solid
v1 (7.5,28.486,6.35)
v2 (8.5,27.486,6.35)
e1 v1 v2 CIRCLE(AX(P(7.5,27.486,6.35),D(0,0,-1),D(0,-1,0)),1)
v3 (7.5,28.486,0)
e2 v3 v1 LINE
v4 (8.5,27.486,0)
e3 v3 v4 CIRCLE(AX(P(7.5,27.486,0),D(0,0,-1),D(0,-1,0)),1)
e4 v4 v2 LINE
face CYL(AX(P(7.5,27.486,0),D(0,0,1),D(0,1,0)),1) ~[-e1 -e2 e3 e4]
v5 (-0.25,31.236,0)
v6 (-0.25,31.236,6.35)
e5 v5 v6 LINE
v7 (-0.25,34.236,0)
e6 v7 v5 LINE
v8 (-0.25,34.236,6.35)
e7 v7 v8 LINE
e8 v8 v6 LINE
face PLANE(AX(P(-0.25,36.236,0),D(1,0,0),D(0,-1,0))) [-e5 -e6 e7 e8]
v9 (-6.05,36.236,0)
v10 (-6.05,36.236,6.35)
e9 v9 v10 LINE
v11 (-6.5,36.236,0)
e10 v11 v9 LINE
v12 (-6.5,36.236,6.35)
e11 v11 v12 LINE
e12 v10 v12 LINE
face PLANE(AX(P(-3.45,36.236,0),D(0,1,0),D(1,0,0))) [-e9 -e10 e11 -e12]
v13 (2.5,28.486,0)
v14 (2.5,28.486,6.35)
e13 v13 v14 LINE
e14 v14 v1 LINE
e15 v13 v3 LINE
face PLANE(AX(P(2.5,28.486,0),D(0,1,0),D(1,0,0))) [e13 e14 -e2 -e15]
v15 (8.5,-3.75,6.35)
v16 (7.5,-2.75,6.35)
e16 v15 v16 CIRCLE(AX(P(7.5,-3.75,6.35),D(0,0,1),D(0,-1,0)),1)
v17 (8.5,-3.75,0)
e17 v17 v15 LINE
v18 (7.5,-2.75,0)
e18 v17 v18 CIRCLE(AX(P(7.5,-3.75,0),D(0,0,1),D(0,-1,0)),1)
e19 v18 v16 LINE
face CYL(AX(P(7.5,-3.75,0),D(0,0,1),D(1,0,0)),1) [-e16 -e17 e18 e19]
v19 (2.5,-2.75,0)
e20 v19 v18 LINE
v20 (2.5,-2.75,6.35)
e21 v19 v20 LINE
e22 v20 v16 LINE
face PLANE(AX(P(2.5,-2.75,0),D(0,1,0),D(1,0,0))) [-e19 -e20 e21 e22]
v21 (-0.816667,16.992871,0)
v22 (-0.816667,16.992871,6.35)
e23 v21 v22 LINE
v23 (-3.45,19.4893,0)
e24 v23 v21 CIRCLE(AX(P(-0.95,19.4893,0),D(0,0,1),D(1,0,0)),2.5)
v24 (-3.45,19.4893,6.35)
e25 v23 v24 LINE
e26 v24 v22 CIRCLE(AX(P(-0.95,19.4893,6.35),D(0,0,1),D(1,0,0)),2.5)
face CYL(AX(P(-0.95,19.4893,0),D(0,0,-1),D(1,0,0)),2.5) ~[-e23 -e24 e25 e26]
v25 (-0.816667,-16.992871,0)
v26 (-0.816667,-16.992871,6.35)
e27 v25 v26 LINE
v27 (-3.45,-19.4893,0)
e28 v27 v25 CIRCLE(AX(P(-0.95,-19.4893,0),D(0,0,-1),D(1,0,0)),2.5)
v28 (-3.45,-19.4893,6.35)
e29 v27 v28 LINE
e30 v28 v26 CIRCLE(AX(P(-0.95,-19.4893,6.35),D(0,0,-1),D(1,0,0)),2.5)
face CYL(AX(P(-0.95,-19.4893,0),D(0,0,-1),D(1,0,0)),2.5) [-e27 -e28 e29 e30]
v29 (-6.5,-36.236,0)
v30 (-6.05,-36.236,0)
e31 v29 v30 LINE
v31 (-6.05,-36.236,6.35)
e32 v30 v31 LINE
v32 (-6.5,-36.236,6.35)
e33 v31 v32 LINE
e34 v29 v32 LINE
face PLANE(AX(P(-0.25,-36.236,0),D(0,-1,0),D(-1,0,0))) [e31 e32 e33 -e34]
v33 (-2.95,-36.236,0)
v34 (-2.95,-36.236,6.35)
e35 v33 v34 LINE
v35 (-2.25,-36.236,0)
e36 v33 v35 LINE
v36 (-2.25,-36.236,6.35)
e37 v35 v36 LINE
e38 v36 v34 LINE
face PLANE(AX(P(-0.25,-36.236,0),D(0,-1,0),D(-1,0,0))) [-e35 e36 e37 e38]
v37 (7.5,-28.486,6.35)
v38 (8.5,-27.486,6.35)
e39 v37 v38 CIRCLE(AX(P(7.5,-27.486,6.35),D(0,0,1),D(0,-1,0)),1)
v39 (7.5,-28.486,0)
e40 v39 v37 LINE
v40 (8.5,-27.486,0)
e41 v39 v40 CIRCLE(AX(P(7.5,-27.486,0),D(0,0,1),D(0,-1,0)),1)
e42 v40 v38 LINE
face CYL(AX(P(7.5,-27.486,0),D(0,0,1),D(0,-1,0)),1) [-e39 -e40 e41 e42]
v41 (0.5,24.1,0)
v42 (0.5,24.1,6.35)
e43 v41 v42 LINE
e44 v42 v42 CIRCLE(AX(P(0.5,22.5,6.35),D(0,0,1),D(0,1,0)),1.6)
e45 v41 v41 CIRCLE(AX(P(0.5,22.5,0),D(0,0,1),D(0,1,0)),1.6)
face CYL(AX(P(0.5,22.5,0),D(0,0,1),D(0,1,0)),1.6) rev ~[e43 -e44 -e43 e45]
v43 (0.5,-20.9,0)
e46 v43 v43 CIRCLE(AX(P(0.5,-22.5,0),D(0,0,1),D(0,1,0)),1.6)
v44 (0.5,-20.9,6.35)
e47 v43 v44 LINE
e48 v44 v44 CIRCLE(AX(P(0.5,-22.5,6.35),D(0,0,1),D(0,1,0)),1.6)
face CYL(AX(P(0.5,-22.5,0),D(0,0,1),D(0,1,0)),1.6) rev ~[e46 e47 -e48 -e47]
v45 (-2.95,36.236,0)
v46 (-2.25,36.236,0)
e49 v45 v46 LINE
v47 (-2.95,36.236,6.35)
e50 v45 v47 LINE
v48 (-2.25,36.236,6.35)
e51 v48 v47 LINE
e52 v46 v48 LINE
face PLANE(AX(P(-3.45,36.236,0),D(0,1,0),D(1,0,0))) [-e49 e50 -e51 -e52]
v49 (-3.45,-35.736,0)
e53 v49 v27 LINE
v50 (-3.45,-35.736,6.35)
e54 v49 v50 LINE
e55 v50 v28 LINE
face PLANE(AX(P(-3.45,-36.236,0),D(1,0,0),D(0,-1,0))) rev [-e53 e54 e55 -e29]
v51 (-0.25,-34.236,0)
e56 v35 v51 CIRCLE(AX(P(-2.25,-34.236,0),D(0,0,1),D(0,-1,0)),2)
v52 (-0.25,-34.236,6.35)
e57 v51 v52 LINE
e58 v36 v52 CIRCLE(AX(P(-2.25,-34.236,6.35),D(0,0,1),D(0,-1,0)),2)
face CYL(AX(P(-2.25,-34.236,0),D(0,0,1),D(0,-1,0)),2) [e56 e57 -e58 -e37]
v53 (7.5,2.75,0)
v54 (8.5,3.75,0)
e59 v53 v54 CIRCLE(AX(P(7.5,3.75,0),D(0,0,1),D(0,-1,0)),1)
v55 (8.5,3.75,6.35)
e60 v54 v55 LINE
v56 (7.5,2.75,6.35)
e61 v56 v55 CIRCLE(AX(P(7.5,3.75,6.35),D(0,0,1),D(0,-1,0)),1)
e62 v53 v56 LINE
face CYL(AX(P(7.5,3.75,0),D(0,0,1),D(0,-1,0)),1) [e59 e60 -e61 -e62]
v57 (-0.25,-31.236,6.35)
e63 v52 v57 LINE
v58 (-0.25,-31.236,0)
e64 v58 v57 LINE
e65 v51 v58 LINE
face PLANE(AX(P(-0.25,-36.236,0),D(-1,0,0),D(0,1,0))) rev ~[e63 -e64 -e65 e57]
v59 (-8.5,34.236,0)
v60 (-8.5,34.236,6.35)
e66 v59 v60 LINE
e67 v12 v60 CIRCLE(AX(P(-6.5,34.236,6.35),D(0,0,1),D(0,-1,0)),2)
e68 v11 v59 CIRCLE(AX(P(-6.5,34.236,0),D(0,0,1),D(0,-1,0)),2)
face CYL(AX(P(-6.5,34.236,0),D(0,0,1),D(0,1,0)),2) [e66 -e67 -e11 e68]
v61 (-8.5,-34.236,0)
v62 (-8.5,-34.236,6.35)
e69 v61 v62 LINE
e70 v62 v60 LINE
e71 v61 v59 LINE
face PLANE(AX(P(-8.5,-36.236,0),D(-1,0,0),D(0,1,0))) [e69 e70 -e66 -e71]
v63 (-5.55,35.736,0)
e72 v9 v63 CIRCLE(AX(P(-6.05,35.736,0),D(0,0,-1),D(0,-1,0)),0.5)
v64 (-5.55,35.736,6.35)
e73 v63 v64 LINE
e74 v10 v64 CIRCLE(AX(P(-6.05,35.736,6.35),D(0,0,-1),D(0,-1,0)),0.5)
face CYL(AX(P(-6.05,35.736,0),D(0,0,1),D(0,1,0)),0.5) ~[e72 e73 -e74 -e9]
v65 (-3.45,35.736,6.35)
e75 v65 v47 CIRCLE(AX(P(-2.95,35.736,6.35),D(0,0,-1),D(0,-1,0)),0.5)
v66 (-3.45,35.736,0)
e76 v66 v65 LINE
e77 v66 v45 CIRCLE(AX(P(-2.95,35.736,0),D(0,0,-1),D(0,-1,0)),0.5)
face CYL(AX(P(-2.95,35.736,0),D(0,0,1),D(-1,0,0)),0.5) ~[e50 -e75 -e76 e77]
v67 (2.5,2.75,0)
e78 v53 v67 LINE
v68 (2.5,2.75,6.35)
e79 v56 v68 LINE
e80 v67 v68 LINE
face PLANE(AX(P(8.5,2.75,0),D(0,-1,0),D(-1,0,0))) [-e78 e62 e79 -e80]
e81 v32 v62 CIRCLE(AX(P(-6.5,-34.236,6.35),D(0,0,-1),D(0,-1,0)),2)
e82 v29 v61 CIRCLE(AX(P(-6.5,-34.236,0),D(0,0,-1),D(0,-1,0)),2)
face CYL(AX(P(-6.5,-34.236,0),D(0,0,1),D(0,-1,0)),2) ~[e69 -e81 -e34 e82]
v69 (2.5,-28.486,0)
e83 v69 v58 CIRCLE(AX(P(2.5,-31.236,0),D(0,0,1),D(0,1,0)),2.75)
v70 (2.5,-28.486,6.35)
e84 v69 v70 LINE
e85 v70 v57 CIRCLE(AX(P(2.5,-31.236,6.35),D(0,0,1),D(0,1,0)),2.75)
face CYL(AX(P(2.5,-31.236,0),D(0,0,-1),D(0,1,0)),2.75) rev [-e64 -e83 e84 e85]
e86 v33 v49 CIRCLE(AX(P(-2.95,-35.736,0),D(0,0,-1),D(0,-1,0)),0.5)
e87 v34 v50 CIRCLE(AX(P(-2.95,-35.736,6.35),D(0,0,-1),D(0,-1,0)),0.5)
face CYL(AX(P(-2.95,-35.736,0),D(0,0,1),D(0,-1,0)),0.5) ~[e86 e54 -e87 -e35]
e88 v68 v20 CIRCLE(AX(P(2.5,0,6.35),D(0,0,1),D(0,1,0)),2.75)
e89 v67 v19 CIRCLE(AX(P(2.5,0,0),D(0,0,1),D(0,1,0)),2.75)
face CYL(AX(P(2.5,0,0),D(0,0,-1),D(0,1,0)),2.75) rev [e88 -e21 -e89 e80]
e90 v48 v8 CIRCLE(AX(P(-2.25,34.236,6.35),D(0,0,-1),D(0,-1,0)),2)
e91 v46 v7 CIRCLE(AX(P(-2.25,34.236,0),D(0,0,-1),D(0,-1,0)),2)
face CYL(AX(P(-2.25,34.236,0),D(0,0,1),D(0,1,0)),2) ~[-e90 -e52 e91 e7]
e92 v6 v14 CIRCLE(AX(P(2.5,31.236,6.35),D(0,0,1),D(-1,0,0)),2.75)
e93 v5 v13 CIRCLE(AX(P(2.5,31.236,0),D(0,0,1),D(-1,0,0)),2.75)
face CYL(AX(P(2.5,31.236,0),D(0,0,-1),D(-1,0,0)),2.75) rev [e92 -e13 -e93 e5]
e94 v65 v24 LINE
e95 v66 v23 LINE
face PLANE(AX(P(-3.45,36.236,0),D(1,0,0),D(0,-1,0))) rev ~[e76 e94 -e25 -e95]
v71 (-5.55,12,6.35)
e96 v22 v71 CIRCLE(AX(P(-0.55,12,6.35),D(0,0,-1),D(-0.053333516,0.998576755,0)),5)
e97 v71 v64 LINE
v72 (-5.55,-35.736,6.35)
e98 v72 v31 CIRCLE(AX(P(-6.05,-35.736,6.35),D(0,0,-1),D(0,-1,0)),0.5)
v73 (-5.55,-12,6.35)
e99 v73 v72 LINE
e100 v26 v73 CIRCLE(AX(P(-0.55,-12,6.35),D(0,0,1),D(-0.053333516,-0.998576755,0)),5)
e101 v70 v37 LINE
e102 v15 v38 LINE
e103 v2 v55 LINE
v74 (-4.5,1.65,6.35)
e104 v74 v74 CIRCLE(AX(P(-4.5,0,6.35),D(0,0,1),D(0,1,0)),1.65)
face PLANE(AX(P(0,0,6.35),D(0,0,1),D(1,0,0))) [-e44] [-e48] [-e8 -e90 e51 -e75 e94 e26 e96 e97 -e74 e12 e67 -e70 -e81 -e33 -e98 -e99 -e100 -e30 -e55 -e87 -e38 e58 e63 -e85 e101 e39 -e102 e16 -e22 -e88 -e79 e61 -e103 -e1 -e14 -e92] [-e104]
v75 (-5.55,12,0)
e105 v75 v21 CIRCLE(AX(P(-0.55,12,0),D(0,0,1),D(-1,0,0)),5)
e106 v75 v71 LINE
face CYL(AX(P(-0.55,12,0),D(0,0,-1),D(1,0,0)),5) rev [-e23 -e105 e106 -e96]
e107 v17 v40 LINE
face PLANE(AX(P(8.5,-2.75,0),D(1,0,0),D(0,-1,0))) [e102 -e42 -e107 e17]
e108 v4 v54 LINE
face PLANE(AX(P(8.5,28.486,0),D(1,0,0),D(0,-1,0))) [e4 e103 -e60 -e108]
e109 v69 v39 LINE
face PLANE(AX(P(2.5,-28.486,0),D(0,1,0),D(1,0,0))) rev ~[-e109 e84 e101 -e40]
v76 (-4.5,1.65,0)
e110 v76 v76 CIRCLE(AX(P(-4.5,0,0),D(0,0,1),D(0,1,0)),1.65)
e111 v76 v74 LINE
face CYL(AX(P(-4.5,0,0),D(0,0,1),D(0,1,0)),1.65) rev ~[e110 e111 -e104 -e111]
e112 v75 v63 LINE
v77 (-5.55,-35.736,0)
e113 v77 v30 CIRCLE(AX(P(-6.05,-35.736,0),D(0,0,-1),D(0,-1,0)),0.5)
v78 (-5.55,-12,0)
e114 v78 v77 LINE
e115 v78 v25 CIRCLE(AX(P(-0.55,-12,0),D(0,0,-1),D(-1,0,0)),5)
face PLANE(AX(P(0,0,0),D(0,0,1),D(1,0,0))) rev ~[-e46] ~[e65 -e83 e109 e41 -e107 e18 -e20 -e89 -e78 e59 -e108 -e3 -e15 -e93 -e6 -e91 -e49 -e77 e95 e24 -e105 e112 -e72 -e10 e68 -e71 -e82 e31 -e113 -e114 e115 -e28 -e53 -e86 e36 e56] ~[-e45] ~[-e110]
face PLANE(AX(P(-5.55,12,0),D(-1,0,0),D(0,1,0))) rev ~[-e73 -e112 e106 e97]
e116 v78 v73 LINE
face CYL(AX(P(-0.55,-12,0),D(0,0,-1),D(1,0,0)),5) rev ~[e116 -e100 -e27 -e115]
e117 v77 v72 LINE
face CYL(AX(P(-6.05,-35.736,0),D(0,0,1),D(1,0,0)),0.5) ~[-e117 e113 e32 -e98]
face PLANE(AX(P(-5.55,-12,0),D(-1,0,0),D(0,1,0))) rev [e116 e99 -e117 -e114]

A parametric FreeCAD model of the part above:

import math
import FreeCAD as App
import Part
import Sketcher


def edges_at(feature, points):
    """Names of the edges that pass closest to the given points."""
    edges = feature.Shape.Edges
    near = lambda p: min(range(len(edges)), key=lambda i: edges[i].distToShape(Part.Vertex(*p))[0])
    return sorted({f"Edge{near(p) + 1}" for p in points})

doc = App.newDocument("Part")
params = doc.addObject("Spreadsheet::Sheet", "Params")
for row, (alias, value) in enumerate([
    ("sketch1_height", "5 mm"),
    ("sketch1_radius", "2.75 mm"),
    ("pad1_length", "6.35 mm"),
    ("fillet_radius", "2 mm"),
    ("fillet2_radius", "2 mm"),
    ("fillet3_radius", "1 mm"),
    ("sketch2_diameter", "3.2 mm"),
    ("hole_diameter", "3.2 mm"),
    ("sketch3_diameter", "3.3 mm"),
    ("hole2_diameter", "3.3 mm"),
    ("sketch4_radius", "5 mm"),
    ("sketch4_radius2", "2.5 mm"),
    ("sketch4_width", "2.1 mm"),
    ("pocket1_length", "6.35 mm"),
    ("fillet4_radius", "0.5 mm"),
], start=1):
    params.set(f"A{row}", alias)
    params.set(f"B{row}", "=" + value)
    params.setAlias(f"B{row}", alias)

body = doc.addObject("PartDesign::Body", "Body")

# Sketch on XY plane
sketch1 = doc.addObject("Sketcher::SketchObject", "Sketch")
body.addObject(sketch1)
sketch1.AttachmentSupport = (doc.XY_Plane, [""])
sketch1.MapMode = "FlatFace"
sketch1.addGeometry([
    Part.LineSegment(App.Vector(-0.2, -36.2, 0), App.Vector(-0.2, -31.2, 0)),  # 0
    Part.ArcOfCircle(Part.Circle(App.Vector(2.5, -31.2, 0), App.Vector(0, 0, 1), 2.8), math.radians(90), math.radians(180)),  # 1
    Part.LineSegment(App.Vector(2.5, -28.5, 0), App.Vector(8.5, -28.5, 0)),  # 2
    Part.LineSegment(App.Vector(8.5, -28.5, 0), App.Vector(8.5, -2.8, 0)),  # 3
    Part.LineSegment(App.Vector(8.5, -2.8, 0), App.Vector(2.5, -2.8, 0)),  # 4
    Part.ArcOfCircle(Part.Circle(App.Vector(2.5, 0, 0), App.Vector(0, 0, 1), 2.8), math.radians(90), math.radians(270)),  # 5
    Part.LineSegment(App.Vector(2.5, 2.8, 0), App.Vector(8.5, 2.8, 0)),  # 6
    Part.LineSegment(App.Vector(8.5, 2.8, 0), App.Vector(8.5, 28.5, 0)),  # 7
    Part.LineSegment(App.Vector(8.5, 28.5, 0), App.Vector(2.5, 28.5, 0)),  # 8
    Part.ArcOfCircle(Part.Circle(App.Vector(2.5, 31.2, 0), App.Vector(0, 0, 1), 2.8), math.radians(180), math.radians(270)),  # 9
    Part.LineSegment(App.Vector(-0.2, 31.2, 0), App.Vector(-0.2, 36.2, 0)),  # 10
    Part.LineSegment(App.Vector(-0.2, 36.2, 0), App.Vector(-8.5, 36.2, 0)),  # 11
    Part.LineSegment(App.Vector(-8.5, 36.2, 0), App.Vector(-8.5, -36.2, 0)),  # 12
    Part.LineSegment(App.Vector(-8.5, -36.2, 0), App.Vector(-0.2, -36.2, 0)),  # 13
], False)
sketch1.addConstraint([
    Sketcher.Constraint("Tangent", 0, 2, 1, 2),
    Sketcher.Constraint("Tangent", 1, 1, 2, 1),
    Sketcher.Constraint("Coincident", 2, 2, 3, 1),
    Sketcher.Constraint("Coincident", 3, 2, 4, 1),
    Sketcher.Constraint("Tangent", 4, 2, 5, 2),
    Sketcher.Constraint("Tangent", 5, 1, 6, 1),
    Sketcher.Constraint("Coincident", 6, 2, 7, 1),
    Sketcher.Constraint("Coincident", 7, 2, 8, 1),
    Sketcher.Constraint("Tangent", 8, 2, 9, 2),
    Sketcher.Constraint("Tangent", 9, 1, 10, 1),
    Sketcher.Constraint("Coincident", 10, 2, 11, 1),
    Sketcher.Constraint("Coincident", 11, 2, 12, 1),
    Sketcher.Constraint("Coincident", 12, 2, 13, 1),
    Sketcher.Constraint("Coincident", 13, 2, 0, 1),
    Sketcher.Constraint("Vertical", 0),
    Sketcher.Constraint("Horizontal", 2),
    Sketcher.Constraint("Vertical", 3),
    Sketcher.Constraint("Horizontal", 4),
    Sketcher.Constraint("Horizontal", 6),
    Sketcher.Constraint("Vertical", 7),
    Sketcher.Constraint("Horizontal", 8),
    Sketcher.Constraint("Vertical", 10),
    Sketcher.Constraint("Horizontal", 11),
    Sketcher.Constraint("Vertical", 12),
    Sketcher.Constraint("Horizontal", 13),
    Sketcher.Constraint("Equal", 1, 5),
    Sketcher.Constraint("Equal", 5, 9),
    Sketcher.Constraint("Symmetric", 1, 3, 9, 3, -1),
    Sketcher.Constraint("Symmetric", 3, 2, 6, 2, -1),
    Sketcher.Constraint("Vertical", 1, 3, 5, 3),
    Sketcher.Constraint("Equal", 0, 10),
    Sketcher.Constraint("DistanceY", 0, 1, 0, 2, 5.0),
    Sketcher.Constraint("Radius", 1, 2.75),
    Sketcher.Constraint("DistanceX", 11, 2, 9, 3, 11.0),
    Sketcher.Constraint("DistanceX", 11, 2, 7, 2, 17.0),
    Sketcher.Constraint("DistanceY", 12, 2, 12, 1, 72.472),
    Sketcher.Constraint("DistanceX", -1, 1, 1, 3, 2.5),
])
sketch1.setExpression("Constraints[31]", "Params.sketch1_height")
sketch1.setExpression("Constraints[32]", "Params.sketch1_radius")
pad1 = doc.addObject("PartDesign::Pad", "Pad")
body.addObject(pad1)
pad1.Profile = sketch1
pad1.setExpression("Length", "Params.pad1_length")
doc.recompute()

fillet = doc.addObject("PartDesign::Fillet", "Fillet")
body.addObject(fillet)
fillet.Base = (pad1, edges_at(pad1, [(-8.5, -36.236, 3.175), (-8.5, 36.236, 3.175)]))
fillet.setExpression("Radius", "Params.fillet_radius")
doc.recompute()

fillet2 = doc.addObject("PartDesign::Fillet", "Fillet001")
body.addObject(fillet2)
fillet2.Base = (fillet, edges_at(fillet, [(-0.25, -36.236, 3.175), (-0.25, 36.236, 3.175)]))
fillet2.setExpression("Radius", "Params.fillet2_radius")
doc.recompute()

fillet3 = doc.addObject("PartDesign::Fillet", "Fillet002")
body.addObject(fillet3)
fillet3.Base = (fillet2, edges_at(fillet2, [
    (8.5, -28.486, 3.175),
    (8.5, -2.75, 3.175),
    (8.5, 2.75, 3.175),
    (8.5, 28.486, 3.175),
]))
fillet3.setExpression("Radius", "Params.fillet3_radius")

# Sketch on XY plane
sketch2 = doc.addObject("Sketcher::SketchObject", "Sketch001")
body.addObject(sketch2)
sketch2.AttachmentSupport = (doc.XY_Plane, [""])
sketch2.MapMode = "FlatFace"
sketch2.addGeometry([
    Part.Circle(App.Vector(0.5, 22.5, 0), App.Vector(0, 0, 1), 1.6),
    Part.Circle(App.Vector(0.5, -22.5, 0), App.Vector(0, 0, 1), 1.6),
], False)
sketch2.addConstraint([
    Sketcher.Constraint("Equal", 0, 1),
    Sketcher.Constraint("Symmetric", 0, 3, 1, 3, -1),
    Sketcher.Constraint("Diameter", 0, 3.2),
    Sketcher.Constraint("DistanceY", 1, 3, 0, 3, 45.0),
    Sketcher.Constraint("DistanceX", -1, 1, 0, 3, 0.5),
])
sketch2.setExpression("Constraints[2]", "Params.sketch2_diameter")
doc.recompute()
hole = doc.addObject("PartDesign::Hole", "Hole")
body.addObject(hole)
hole.Profile = sketch2
hole.ThreadType = "None"
hole.setExpression("Diameter", "Params.hole_diameter")
hole.DepthType = "ThroughAll"
hole.Reversed = True

# Sketch on XY plane
sketch3 = doc.addObject("Sketcher::SketchObject", "Sketch002")
body.addObject(sketch3)
sketch3.AttachmentSupport = (doc.XY_Plane, [""])
sketch3.MapMode = "FlatFace"
sketch3.addGeometry(Part.Circle(App.Vector(-4.5, 0, 0), App.Vector(0, 0, 1), 1.6), False)
sketch3.addConstraint([
    Sketcher.Constraint("PointOnObject", 0, 3, -1),
    Sketcher.Constraint("Diameter", 0, 3.3),
    Sketcher.Constraint("DistanceX", 0, 3, -1, 1, 4.5),
])
sketch3.setExpression("Constraints[1]", "Params.sketch3_diameter")
doc.recompute()
hole2 = doc.addObject("PartDesign::Hole", "Hole001")
body.addObject(hole2)
hole2.Profile = sketch3
hole2.ThreadType = "None"
hole2.setExpression("Diameter", "Params.hole2_diameter")
hole2.DepthType = "ThroughAll"
hole2.Reversed = True

# Sketch on XY plane
sketch4 = doc.addObject("Sketcher::SketchObject", "Sketch003")
body.addObject(sketch4)
sketch4.AttachmentSupport = (doc.XY_Plane, [""])
sketch4.MapMode = "FlatFace"
sketch4.addGeometry([
    Part.ArcOfCircle(Part.Circle(App.Vector(-0.6, 12, 0), App.Vector(0, 0, 1), 5), math.radians(180), math.radians(453)),  # 0
    Part.ArcOfCircle(Part.Circle(App.Vector(-0.9, 19.5, 0), App.Vector(0, 0, 1), 2.5), math.radians(180), math.radians(273)),  # 1
    Part.LineSegment(App.Vector(-3.5, 19.5, 0), App.Vector(-3.5, 36.2, 0)),  # 2
    Part.LineSegment(App.Vector(-3.5, 36.2, 0), App.Vector(-5.5, 36.2, 0)),  # 3
    Part.LineSegment(App.Vector(-5.5, 36.2, 0), App.Vector(-5.5, 12, 0)),  # 4
], False)
sketch4.addConstraint([
    Sketcher.Constraint("Tangent", 0, 2, 1, 2),
    Sketcher.Constraint("Tangent", 1, 1, 2, 1),
    Sketcher.Constraint("Coincident", 2, 2, 3, 1),
    Sketcher.Constraint("Coincident", 3, 2, 4, 1),
    Sketcher.Constraint("Tangent", 4, 2, 0, 1),
    Sketcher.Constraint("Vertical", 2),
    Sketcher.Constraint("Horizontal", 3),
    Sketcher.Constraint("Vertical", 4),
    Sketcher.Constraint("Radius", 0, 5.0),
    Sketcher.Constraint("Radius", 1, 2.5),
    Sketcher.Constraint("DistanceX", 3, 2, 3, 1, 2.1),
    Sketcher.Constraint("DistanceY", -1, 1, 0, 3, 12.0),
    Sketcher.Constraint("DistanceY", 4, 2, 4, 1, 24.236),
    Sketcher.Constraint("DistanceX", 0, 3, -1, 1, 0.55),
])
sketch4.setExpression("Constraints[8]", "Params.sketch4_radius")
sketch4.setExpression("Constraints[9]", "Params.sketch4_radius2")
sketch4.setExpression("Constraints[10]", "Params.sketch4_width")
pocket1 = doc.addObject("PartDesign::Pocket", "Pocket")
body.addObject(pocket1)
pocket1.Profile = sketch4
pocket1.setExpression("Length", "Params.pocket1_length")
pocket1.Reversed = True
doc.recompute()

mirrored = doc.addObject("PartDesign::Mirrored", "Mirrored")
body.addObject(mirrored)
mirrored.Originals = [pocket1]
mirrored.MirrorPlane = (doc.XZ_Plane, [""])
body.Tip = mirrored
doc.recompute()

fillet4 = doc.addObject("PartDesign::Fillet", "Fillet003")
body.addObject(fillet4)
fillet4.Base = (mirrored, edges_at(mirrored, [
    (-5.55, 36.236, 3.175),
    (-3.45, 36.236, 3.175),
    (-3.45, -36.236, 3.175),
    (-5.55, -36.236, 3.175),
]))
fillet4.setExpression("Radius", "Params.fillet4_radius")

doc.recompute()
